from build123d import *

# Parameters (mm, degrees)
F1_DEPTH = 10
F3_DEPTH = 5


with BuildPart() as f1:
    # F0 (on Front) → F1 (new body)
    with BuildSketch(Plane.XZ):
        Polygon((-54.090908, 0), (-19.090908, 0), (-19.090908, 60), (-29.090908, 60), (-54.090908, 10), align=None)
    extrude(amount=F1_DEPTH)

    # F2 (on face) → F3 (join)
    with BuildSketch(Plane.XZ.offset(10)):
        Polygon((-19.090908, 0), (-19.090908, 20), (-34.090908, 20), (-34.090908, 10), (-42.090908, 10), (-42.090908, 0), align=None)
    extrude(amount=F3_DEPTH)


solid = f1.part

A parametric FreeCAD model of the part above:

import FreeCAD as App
import Part
import Sketcher

V = App.Vector


def add_polygon(sketch, points):
    """Adds a closed chain of lines whose ends are joined by coincident constraints."""
    first, n = sketch.GeometryCount, len(points)
    for a, b in zip(points, points[1:] + points[:1]):
        sketch.addGeometry(Part.LineSegment(App.Vector(*a, 0), App.Vector(*b, 0)), False)
    for i in range(n):
        sketch.addConstraint(Sketcher.Constraint("Coincident", first + i, 2, first + (i + 1) % n, 1))

doc = App.newDocument("Part")
params = doc.addObject("Spreadsheet::Sheet", "Params")
for row, (alias, value) in enumerate([
    ("sketch1_width", "35 mm"),
    ("sketch1_width2", "10 mm"),
    ("sketch1_height", "60 mm"),
    ("pad1_length", "10 mm"),
    ("sketch2_width", "15 mm"),
    ("sketch2_width2", "8 mm"),
    ("sketch2_height", "20 mm"),
    ("pad2_length", "5 mm"),
], start=1):
    params.set(f"A{row}", alias)
    params.set(f"B{row}", "=" + value)
    params.setAlias(f"B{row}", alias)

body = doc.addObject("PartDesign::Body", "Body")

sketch1 = doc.addObject("Sketcher::SketchObject", "Sketch")
body.addObject(sketch1)
sketch1.AttachmentSupport = (doc.XZ_Plane, [""])
sketch1.MapMode = "FlatFace"
add_polygon(sketch1, [(-54, 0), (-19, 0), (-19, 60), (-29, 60), (-54, 10)])
sketch1.addConstraint([
    Sketcher.Constraint("Horizontal", 0),
    Sketcher.Constraint("Vertical", 1),
    Sketcher.Constraint("Horizontal", 2),
    Sketcher.Constraint("Vertical", 4),
    Sketcher.Constraint("PointOnObject", 0, 2, -1),
    Sketcher.Constraint("Equal", 2, 4),
    Sketcher.Constraint("DistanceX", 0, 1, 0, 2, 35.0),
    Sketcher.Constraint("DistanceX", 2, 2, 2, 1, 10.0),
    Sketcher.Constraint("DistanceY", 1, 1, 1, 2, 60.0),
    Sketcher.Constraint("DistanceX", 0, 2, -1, 1, 19.090908),
])
sketch1.setExpression("Constraints[11]", "Params.sketch1_width")
sketch1.setExpression("Constraints[12]", "Params.sketch1_width2")
sketch1.setExpression("Constraints[13]", "Params.sketch1_height")
pad1 = doc.addObject("PartDesign::Pad", "Pad")
body.addObject(pad1)
pad1.Profile = sketch1
pad1.setExpression("Length", "Params.pad1_length")

sketch2 = doc.addObject("Sketcher::SketchObject", "Sketch001")
body.addObject(sketch2)
sketch2.AttachmentSupport = (doc.XZ_Plane, [""])
sketch2.MapMode = "FlatFace"
sketch2.AttachmentOffset = App.Placement(V(0, 0, 10), App.Rotation())
add_polygon(sketch2, [(-19, 0), (-19, 20), (-34, 20), (-34, 10), (-42, 10), (-42, 0)])
sketch2.addConstraint([
    Sketcher.Constraint("Vertical", 0),
    Sketcher.Constraint("Horizontal", 1),
    Sketcher.Constraint("Vertical", 2),
    Sketcher.Constraint("Horizontal", 3),
    Sketcher.Constraint("Vertical", 4),
    Sketcher.Constraint("Horizontal", 5),
    Sketcher.Constraint("PointOnObject", 4, 2, -1),
    Sketcher.Constraint("Equal", 2, 4),
    Sketcher.Constraint("DistanceX", 1, 2, 1, 1, 15.0),
    Sketcher.Constraint("DistanceX", 3, 2, 3, 1, 8.0),
    Sketcher.Constraint("DistanceY", 0, 1, 0, 2, 20.0),
    Sketcher.Constraint("DistanceX", 0, 2, -1, 1, 19.090908),
])
sketch2.setExpression("Constraints[14]", "Params.sketch2_width")
sketch2.setExpression("Constraints[15]", "Params.sketch2_width2")
sketch2.setExpression("Constraints[16]", "Params.sketch2_height")
pad2 = doc.addObject("PartDesign::Pad", "Pad001")
body.addObject(pad2)
pad2.Profile = sketch2
pad2.setExpression("Length", "Params.pad2_length")

doc.recompute()
